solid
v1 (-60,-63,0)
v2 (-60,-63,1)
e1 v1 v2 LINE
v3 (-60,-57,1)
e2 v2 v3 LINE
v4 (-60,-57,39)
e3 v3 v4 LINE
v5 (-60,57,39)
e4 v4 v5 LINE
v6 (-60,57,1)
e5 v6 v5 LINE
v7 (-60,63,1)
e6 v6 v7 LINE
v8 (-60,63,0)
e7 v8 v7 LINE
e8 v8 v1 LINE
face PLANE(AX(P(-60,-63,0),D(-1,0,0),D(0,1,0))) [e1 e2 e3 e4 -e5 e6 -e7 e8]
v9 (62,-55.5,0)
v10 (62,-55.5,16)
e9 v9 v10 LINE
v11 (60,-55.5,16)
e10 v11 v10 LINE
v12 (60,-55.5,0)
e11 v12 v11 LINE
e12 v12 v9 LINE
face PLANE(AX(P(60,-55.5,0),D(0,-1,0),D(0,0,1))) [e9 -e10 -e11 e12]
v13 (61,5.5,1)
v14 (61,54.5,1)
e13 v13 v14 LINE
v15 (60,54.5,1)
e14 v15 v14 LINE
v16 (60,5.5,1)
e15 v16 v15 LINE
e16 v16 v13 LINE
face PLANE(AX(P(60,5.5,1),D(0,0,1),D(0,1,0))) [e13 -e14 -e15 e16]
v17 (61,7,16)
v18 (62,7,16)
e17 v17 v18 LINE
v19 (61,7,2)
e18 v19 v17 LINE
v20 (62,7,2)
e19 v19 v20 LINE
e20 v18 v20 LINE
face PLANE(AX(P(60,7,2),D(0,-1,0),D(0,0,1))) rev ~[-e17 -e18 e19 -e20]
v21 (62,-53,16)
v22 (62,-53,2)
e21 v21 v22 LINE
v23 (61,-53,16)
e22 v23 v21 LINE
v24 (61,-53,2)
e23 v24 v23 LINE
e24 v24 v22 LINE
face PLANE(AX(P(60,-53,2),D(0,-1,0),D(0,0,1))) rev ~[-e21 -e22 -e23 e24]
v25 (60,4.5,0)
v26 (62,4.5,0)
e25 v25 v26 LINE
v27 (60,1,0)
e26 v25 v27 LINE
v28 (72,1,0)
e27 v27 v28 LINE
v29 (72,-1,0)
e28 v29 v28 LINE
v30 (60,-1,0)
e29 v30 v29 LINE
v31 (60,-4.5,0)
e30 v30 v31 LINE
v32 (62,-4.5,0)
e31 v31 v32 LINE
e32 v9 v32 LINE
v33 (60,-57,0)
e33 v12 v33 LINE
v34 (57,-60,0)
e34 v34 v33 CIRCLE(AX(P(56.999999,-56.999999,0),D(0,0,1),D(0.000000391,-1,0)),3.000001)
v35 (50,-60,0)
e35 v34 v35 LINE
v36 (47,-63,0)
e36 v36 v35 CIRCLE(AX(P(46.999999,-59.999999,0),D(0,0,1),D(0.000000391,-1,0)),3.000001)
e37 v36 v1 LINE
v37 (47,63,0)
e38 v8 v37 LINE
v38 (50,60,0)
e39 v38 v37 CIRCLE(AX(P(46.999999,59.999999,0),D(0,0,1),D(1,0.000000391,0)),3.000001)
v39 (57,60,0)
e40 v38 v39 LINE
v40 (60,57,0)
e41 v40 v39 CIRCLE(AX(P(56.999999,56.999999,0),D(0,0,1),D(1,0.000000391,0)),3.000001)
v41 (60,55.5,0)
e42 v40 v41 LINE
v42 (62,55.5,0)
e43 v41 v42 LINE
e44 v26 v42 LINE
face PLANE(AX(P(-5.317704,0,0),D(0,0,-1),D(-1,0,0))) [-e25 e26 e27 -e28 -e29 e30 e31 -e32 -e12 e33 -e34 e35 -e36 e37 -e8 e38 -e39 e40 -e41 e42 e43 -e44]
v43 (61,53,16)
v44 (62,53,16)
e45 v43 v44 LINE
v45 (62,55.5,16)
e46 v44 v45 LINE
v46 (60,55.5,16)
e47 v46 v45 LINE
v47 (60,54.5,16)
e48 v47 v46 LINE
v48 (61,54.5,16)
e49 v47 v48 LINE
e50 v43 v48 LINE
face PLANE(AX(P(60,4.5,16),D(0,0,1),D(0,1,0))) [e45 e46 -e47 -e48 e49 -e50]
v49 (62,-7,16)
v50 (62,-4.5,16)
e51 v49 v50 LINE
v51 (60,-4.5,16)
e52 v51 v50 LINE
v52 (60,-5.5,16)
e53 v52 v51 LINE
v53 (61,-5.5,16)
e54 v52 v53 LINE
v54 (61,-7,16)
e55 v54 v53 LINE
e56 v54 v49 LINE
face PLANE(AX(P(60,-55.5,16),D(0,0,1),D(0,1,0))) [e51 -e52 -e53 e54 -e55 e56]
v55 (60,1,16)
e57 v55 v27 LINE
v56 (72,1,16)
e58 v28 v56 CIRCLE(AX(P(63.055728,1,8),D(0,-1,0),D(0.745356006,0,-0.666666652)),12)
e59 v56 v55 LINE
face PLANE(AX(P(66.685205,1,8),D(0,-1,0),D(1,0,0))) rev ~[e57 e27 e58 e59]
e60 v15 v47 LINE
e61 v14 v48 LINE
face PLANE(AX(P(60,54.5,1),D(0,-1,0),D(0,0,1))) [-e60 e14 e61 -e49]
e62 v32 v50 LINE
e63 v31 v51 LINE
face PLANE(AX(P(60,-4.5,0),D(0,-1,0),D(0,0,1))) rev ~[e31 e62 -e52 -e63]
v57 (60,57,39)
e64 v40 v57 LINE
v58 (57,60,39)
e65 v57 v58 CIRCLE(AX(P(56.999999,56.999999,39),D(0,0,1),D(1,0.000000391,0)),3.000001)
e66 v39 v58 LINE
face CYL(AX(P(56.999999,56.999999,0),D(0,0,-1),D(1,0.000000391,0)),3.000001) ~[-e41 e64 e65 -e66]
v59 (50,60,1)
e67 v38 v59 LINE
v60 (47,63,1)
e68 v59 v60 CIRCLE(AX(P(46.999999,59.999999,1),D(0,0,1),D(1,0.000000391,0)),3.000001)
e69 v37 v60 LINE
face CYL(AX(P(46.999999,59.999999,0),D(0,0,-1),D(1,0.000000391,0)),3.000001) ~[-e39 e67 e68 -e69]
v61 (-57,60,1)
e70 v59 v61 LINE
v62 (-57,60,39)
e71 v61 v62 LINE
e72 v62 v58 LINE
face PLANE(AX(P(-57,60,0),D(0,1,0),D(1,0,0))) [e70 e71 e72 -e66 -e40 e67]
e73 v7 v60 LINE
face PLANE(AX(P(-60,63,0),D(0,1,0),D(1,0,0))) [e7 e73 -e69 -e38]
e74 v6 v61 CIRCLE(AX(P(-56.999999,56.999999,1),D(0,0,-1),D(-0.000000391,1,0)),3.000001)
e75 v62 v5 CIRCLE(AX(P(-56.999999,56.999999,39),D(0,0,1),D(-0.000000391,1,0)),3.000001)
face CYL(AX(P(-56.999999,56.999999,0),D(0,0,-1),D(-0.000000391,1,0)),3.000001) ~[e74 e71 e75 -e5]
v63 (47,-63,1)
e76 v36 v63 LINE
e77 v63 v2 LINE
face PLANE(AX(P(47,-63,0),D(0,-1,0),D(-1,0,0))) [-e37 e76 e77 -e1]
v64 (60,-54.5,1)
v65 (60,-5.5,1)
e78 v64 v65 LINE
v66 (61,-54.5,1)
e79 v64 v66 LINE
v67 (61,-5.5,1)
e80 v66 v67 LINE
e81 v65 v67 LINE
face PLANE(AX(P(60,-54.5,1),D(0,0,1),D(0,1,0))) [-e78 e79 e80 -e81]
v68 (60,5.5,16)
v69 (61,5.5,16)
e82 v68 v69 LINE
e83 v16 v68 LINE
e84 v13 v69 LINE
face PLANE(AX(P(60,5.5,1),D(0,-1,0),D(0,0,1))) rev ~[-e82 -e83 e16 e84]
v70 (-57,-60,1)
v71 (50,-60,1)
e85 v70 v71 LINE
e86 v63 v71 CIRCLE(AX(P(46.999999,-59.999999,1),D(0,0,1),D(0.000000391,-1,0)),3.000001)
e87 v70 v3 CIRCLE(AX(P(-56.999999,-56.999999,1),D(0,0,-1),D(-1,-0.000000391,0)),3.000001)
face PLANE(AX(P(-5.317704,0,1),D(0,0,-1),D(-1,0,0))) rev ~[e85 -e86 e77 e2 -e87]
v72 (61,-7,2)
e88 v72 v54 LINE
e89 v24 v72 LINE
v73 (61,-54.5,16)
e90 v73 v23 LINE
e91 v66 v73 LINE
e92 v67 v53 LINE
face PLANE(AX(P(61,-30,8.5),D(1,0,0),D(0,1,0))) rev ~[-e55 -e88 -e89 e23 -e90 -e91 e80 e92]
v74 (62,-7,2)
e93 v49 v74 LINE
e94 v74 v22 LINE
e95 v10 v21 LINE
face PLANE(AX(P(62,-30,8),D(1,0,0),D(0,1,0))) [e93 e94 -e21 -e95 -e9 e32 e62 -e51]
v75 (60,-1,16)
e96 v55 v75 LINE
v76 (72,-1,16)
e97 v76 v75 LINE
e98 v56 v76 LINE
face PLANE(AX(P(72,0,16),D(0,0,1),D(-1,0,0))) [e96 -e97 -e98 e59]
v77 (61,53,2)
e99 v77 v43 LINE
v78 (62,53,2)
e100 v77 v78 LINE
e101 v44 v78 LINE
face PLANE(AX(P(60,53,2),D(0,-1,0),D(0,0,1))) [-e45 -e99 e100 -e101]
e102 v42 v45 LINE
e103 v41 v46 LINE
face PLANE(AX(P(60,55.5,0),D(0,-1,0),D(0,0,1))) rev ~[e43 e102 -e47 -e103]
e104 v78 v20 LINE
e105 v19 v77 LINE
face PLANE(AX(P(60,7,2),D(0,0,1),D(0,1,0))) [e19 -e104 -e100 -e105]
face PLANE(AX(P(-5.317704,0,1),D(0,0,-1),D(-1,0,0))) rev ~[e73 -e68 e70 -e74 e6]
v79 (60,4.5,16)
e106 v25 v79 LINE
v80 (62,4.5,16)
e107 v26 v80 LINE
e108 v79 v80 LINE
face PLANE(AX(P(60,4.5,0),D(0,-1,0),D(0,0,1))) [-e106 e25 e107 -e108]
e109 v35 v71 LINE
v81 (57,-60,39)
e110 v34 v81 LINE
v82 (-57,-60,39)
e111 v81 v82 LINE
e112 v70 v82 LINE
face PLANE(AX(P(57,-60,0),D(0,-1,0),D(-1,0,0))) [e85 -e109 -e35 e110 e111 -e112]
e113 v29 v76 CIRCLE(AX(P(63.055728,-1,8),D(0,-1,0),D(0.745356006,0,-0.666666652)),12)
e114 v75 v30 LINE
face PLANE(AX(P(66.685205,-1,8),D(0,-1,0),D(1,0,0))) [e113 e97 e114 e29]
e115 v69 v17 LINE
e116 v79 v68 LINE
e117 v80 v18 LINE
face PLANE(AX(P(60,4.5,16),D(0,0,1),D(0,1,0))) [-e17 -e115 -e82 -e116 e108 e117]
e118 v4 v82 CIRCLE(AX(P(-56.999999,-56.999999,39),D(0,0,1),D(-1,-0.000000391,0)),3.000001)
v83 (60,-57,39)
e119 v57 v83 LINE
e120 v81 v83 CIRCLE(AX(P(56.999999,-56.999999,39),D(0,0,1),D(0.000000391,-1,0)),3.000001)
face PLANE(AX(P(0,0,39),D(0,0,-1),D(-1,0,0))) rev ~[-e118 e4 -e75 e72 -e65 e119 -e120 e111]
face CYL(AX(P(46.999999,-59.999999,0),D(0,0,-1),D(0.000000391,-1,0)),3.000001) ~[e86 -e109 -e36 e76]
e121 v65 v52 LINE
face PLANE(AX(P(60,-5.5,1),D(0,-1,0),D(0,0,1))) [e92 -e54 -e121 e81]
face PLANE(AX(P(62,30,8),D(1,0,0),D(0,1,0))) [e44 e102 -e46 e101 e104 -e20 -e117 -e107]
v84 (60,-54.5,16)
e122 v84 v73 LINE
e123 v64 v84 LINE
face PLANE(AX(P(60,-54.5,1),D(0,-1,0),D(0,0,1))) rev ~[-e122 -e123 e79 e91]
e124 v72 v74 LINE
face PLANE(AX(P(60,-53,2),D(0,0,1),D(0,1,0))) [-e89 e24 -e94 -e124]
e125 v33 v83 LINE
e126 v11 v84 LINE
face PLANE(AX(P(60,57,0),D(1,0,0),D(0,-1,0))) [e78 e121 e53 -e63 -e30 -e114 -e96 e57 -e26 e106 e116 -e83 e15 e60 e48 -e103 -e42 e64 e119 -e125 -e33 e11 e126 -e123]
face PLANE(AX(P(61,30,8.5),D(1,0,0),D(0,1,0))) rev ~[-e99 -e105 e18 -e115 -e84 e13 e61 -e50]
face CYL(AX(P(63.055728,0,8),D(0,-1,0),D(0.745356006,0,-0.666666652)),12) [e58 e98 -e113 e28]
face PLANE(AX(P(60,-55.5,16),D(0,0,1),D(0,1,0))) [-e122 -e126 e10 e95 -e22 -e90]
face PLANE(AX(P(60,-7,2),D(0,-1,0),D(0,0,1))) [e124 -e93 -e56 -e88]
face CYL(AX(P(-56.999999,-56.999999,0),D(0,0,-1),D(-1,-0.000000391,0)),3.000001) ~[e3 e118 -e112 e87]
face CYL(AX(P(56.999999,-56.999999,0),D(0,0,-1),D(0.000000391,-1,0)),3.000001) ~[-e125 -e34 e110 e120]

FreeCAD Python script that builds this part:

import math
import FreeCAD as App
import Part
import Sketcher

V = App.Vector
Q = App.Units.Quantity


def add_polygon(sketch, points):
    """Adds a closed chain of lines whose ends are joined by coincident constraints."""
    first, n = sketch.GeometryCount, len(points)
    for a, b in zip(points, points[1:] + points[:1]):
        sketch.addGeometry(Part.LineSegment(App.Vector(*a, 0), App.Vector(*b, 0)), False)
    for i in range(n):
        sketch.addConstraint(Sketcher.Constraint("Coincident", first + i, 2, first + (i + 1) % n, 1))

doc = App.newDocument("Part")
body = doc.addObject("PartDesign::Body", "Body")

# Sketch on XY plane
sketch1 = body.newObject("Sketcher::SketchObject", "Sketch")
sketch1.AttachmentSupport = (doc.getObject("XY_Plane"), [""])
sketch1.MapMode = "FlatFace"
sketch1.addGeometry(Part.LineSegment(V(57, 60, 0), V(-57, 60, 0)), False)
sketch1.addGeometry(Part.ArcOfCircle(Part.Circle(V(-56.999999, 56.999999, 0), V(0, 0, 1), 3.000001), math.radians(90.000022), math.radians(179.999978)), False)
sketch1.addGeometry(Part.LineSegment(V(-60, 57, 0), V(-60, -57, 0)), False)
sketch1.addGeometry(Part.ArcOfCircle(Part.Circle(V(-56.999999, -56.999999, 0), V(0, 0, 1), 3.000001), math.radians(-179.999978), math.radians(-90.000022)), False)
sketch1.addGeometry(Part.LineSegment(V(-57, -60, 0), V(57, -60, 0)), False)
sketch1.addGeometry(Part.ArcOfCircle(Part.Circle(V(56.999999, -56.999999, 0), V(0, 0, 1), 3.000001), math.radians(-89.999978), math.radians(-0.000022)), False)
sketch1.addGeometry(Part.LineSegment(V(60, -57, 0), V(60, 57, 0)), False)
sketch1.addGeometry(Part.ArcOfCircle(Part.Circle(V(56.999999, 56.999999, 0), V(0, 0, 1), 3.000001), math.radians(0.000022), math.radians(89.999978)), False)
sketch1.addConstraint(Sketcher.Constraint("Tangent", 0, 2, 1, 1))
sketch1.addConstraint(Sketcher.Constraint("Tangent", 1, 2, 2, 1))
sketch1.addConstraint(Sketcher.Constraint("Tangent", 2, 2, 3, 1))
sketch1.addConstraint(Sketcher.Constraint("Tangent", 3, 2, 4, 1))
sketch1.addConstraint(Sketcher.Constraint("Tangent", 4, 2, 5, 1))
sketch1.addConstraint(Sketcher.Constraint("Tangent", 5, 2, 6, 1))
sketch1.addConstraint(Sketcher.Constraint("Tangent", 6, 2, 7, 1))
sketch1.addConstraint(Sketcher.Constraint("Tangent", 7, 2, 0, 1))
sketch1.addConstraint(Sketcher.Constraint("Horizontal", 0))
sketch1.addConstraint(Sketcher.Constraint("Vertical", 2))
sketch1.addConstraint(Sketcher.Constraint("Horizontal", 4))
sketch1.addConstraint(Sketcher.Constraint("Vertical", 6))
sketch1.addConstraint(Sketcher.Constraint("Equal", 1, 3))
sketch1.addConstraint(Sketcher.Constraint("Equal", 3, 5))
sketch1.addConstraint(Sketcher.Constraint("Equal", 5, 7))
sketch1.addConstraint(Sketcher.Constraint("Symmetric", 1, 3, 5, 3, -1, 1))
sketch1.addConstraint(Sketcher.Constraint("Equal", 4, 2))
sketch1.addConstraint(Sketcher.Constraint("Radius", 1, Q("3.000001 mm")))
sketch1.addConstraint(Sketcher.Constraint("DistanceX", 0, 2, 0, 1, Q("114 mm")))
pad1 = body.newObject("PartDesign::Pad", "Pad")
pad1.Profile = sketch1
pad1.Length = 39

# Sketch on XY plane
sketch2 = body.newObject("Sketcher::SketchObject", "Sketch001")
sketch2.AttachmentSupport = (doc.getObject("XY_Plane"), [""])
sketch2.MapMode = "FlatFace"
sketch2.addGeometry(Part.LineSegment(V(47, 63, 0), V(-60, 63, 0)), False)
sketch2.addGeometry(Part.LineSegment(V(-60, 63, 0), V(-60, -63, 0)), False)
sketch2.addGeometry(Part.LineSegment(V(-60, -63, 0), V(47, -63, 0)), False)
sketch2.addGeometry(Part.ArcOfCircle(Part.Circle(V(46.999999, -59.999999, 0), V(0, 0, 1), 3.000001), math.radians(-89.999978), math.radians(-0.000022)), False)
sketch2.addGeometry(Part.LineSegment(V(50, -60, 0), V(50, 60, 0)), False)
sketch2.addGeometry(Part.ArcOfCircle(Part.Circle(V(46.999999, 59.999999, 0), V(0, 0, 1), 3.000001), math.radians(0.000022), math.radians(89.999978)), False)
sketch2.addConstraint(Sketcher.Constraint("Coincident", 0, 2, 1, 1))
sketch2.addConstraint(Sketcher.Constraint("Coincident", 1, 2, 2, 1))
sketch2.addConstraint(Sketcher.Constraint("Tangent", 2, 2, 3, 1))
sketch2.addConstraint(Sketcher.Constraint("Tangent", 3, 2, 4, 1))
sketch2.addConstraint(Sketcher.Constraint("Tangent", 4, 2, 5, 1))
sketch2.addConstraint(Sketcher.Constraint("Tangent", 5, 2, 0, 1))
sketch2.addConstraint(Sketcher.Constraint("Horizontal", 0))
sketch2.addConstraint(Sketcher.Constraint("Vertical", 1))
sketch2.addConstraint(Sketcher.Constraint("Horizontal", 2))
sketch2.addConstraint(Sketcher.Constraint("Vertical", 4))
sketch2.addConstraint(Sketcher.Constraint("Equal", 3, 5))
sketch2.addConstraint(Sketcher.Constraint("Radius", 3, Q("3.000001 mm")))
sketch2.addConstraint(Sketcher.Constraint("DistanceX", 0, 2, 0, 1, Q("107 mm")))
sketch2.addConstraint(Sketcher.Constraint("DistanceY", 1, 2, 1, 1, Q("126 mm")))
sketch2.addConstraint(Sketcher.Constraint("DistanceX", -1, 1, 3, 3, Q("46.999999 mm")))
sketch2.addConstraint(Sketcher.Constraint("DistanceY", 3, 3, -1, 1, Q("59.999999 mm")))
pad2 = body.newObject("PartDesign::Pad", "Pad001")
pad2.Profile = sketch2
pad2.Length = 1

# Sketch on YZ plane
sketch3 = body.newObject("Sketcher::SketchObject", "Sketch002")
sketch3.AttachmentSupport = (doc.getObject("YZ_Plane"), [""])
sketch3.MapMode = "FlatFace"
sketch3.AttachmentOffset = App.Placement(V(0, 0, 60), App.Rotation())
add_polygon(sketch3, [(-55.5, 16), (-55.5, 0), (-4.5, 0), (-4.5, 16)])  # lines 0-3
add_polygon(sketch3, [(4.5, 16), (4.5, 0), (55.5, 0), (55.5, 16)])  # lines 4-7
sketch3.addConstraint(Sketcher.Constraint("Vertical", 0))
sketch3.addConstraint(Sketcher.Constraint("Horizontal", 1))
sketch3.addConstraint(Sketcher.Constraint("Vertical", 2))
sketch3.addConstraint(Sketcher.Constraint("Horizontal", 3))
sketch3.addConstraint(Sketcher.Constraint("Vertical", 4))
sketch3.addConstraint(Sketcher.Constraint("Horizontal", 5))
sketch3.addConstraint(Sketcher.Constraint("Vertical", 6))
sketch3.addConstraint(Sketcher.Constraint("Horizontal", 7))
sketch3.addConstraint(Sketcher.Constraint("Symmetric", 1, 2, 4, 2, -1, 1))
sketch3.addConstraint(Sketcher.Constraint("Symmetric", 0, 2, 5, 2, -2))
sketch3.addConstraint(Sketcher.Constraint("Horizontal", 3, 2, 6, 2))
sketch3.addConstraint(Sketcher.Constraint("DistanceX", 1, 1, 1, 2, Q("51 mm")))
sketch3.addConstraint(Sketcher.Constraint("DistanceY", 0, 2, 0, 1, Q("16 mm")))
sketch3.addConstraint(Sketcher.Constraint("DistanceX", 1, 2, 4, 2, Q("9 mm")))
pad3 = body.newObject("PartDesign::Pad", "Pad002")
pad3.Profile = sketch3
pad3.Length = 2

# Sketch on YZ plane
sketch4 = body.newObject("Sketcher::SketchObject", "Sketch003")
sketch4.AttachmentSupport = (doc.getObject("YZ_Plane"), [""])
sketch4.MapMode = "FlatFace"
sketch4.AttachmentOffset = App.Placement(V(0, 0, 60), App.Rotation())
add_polygon(sketch4, [(-53, 16), (-53, 2), (-7, 2), (-7, 16)])  # lines 0-3
add_polygon(sketch4, [(7, 16), (7, 2), (53, 2), (53, 16)])  # lines 4-7
sketch4.addConstraint(Sketcher.Constraint("Vertical", 0))
sketch4.addConstraint(Sketcher.Constraint("Horizontal", 1))
sketch4.addConstraint(Sketcher.Constraint("Vertical", 2))
sketch4.addConstraint(Sketcher.Constraint("Horizontal", 3))
sketch4.addConstraint(Sketcher.Constraint("Vertical", 4))
sketch4.addConstraint(Sketcher.Constraint("Horizontal", 5))
sketch4.addConstraint(Sketcher.Constraint("Vertical", 6))
sketch4.addConstraint(Sketcher.Constraint("Horizontal", 7))
sketch4.addConstraint(Sketcher.Constraint("Symmetric", 1, 2, 4, 2, -2))
sketch4.addConstraint(Sketcher.Constraint("Symmetric", 3, 2, 6, 2, -2))
sketch4.addConstraint(Sketcher.Constraint("DistanceX", 1, 1, 1, 2, Q("46 mm")))
sketch4.addConstraint(Sketcher.Constraint("DistanceY", 0, 2, 0, 1, Q("14 mm")))
sketch4.addConstraint(Sketcher.Constraint("DistanceX", 0, 2, -1, 1, Q("53 mm")))
sketch4.addConstraint(Sketcher.Constraint("DistanceY", -1, 1, 0, 2, Q("2 mm")))
pocket1 = body.newObject("PartDesign::Pocket", "Pocket")
pocket1.Profile = sketch4
pocket1.Length = 3
pocket1.Reversed = True

# Sketch on YZ plane
sketch5 = body.newObject("Sketcher::SketchObject", "Sketch004")
sketch5.AttachmentSupport = (doc.getObject("YZ_Plane"), [""])
sketch5.MapMode = "FlatFace"
sketch5.AttachmentOffset = App.Placement(V(0, 0, 60), App.Rotation())
add_polygon(sketch5, [(-54.5, 16), (-54.5, 1), (-5.5, 1), (-5.5, 16)])  # lines 0-3
add_polygon(sketch5, [(5.5, 16), (5.5, 1), (54.5, 1), (54.5, 16)])  # lines 4-7
sketch5.addConstraint(Sketcher.Constraint("Vertical", 0))
sketch5.addConstraint(Sketcher.Constraint("Horizontal", 1))
sketch5.addConstraint(Sketcher.Constraint("Vertical", 2))
sketch5.addConstraint(Sketcher.Constraint("Horizontal", 3))
sketch5.addConstraint(Sketcher.Constraint("Vertical", 4))
sketch5.addConstraint(Sketcher.Constraint("Horizontal", 5))
sketch5.addConstraint(Sketcher.Constraint("Vertical", 6))
sketch5.addConstraint(Sketcher.Constraint("Horizontal", 7))
sketch5.addConstraint(Sketcher.Constraint("Symmetric", 1, 2, 4, 2, -2))
sketch5.addConstraint(Sketcher.Constraint("Symmetric", 3, 2, 6, 2, -2))
sketch5.addConstraint(Sketcher.Constraint("DistanceX", 1, 1, 1, 2, Q("49 mm")))
sketch5.addConstraint(Sketcher.Constraint("DistanceY", 0, 2, 0, 1, Q("15 mm")))
sketch5.addConstraint(Sketcher.Constraint("DistanceY", -1, 1, 0, 2, Q("1 mm")))
sketch5.addConstraint(Sketcher.Constraint("DistanceX", 1, 2, 4, 2, Q("11 mm")))
pocket2 = body.newObject("PartDesign::Pocket", "Pocket001")
pocket2.Profile = sketch5
pocket2.Length = 1
pocket2.Reversed = True

# Sketch on XZ plane
sketch6 = body.newObject("Sketcher::SketchObject", "Sketch005")
sketch6.AttachmentSupport = (doc.getObject("XZ_Plane"), [""])
sketch6.MapMode = "FlatFace"
sketch6.addGeometry(Part.ArcOfCircle(Part.Circle(V(63.055728, 8, 0), V(0, 0, 1), 12), math.radians(-41.810314), math.radians(41.810314)), False)
sketch6.addGeometry(Part.LineSegment(V(72, 16, 0), V(60, 16, 0)), False)
sketch6.addGeometry(Part.LineSegment(V(60, 16, 0), V(60, 0, 0)), False)
sketch6.addGeometry(Part.LineSegment(V(60, 0, 0), V(72, 0, 0)), False)
sketch6.addConstraint(Sketcher.Constraint("Coincident", 0, 2, 1, 1))
sketch6.addConstraint(Sketcher.Constraint("Coincident", 1, 2, 2, 1))
sketch6.addConstraint(Sketcher.Constraint("Coincident", 2, 2, 3, 1))
sketch6.addConstraint(Sketcher.Constraint("Coincident", 3, 2, 0, 1))
sketch6.addConstraint(Sketcher.Constraint("Horizontal", 1))
sketch6.addConstraint(Sketcher.Constraint("Vertical", 2))
sketch6.addConstraint(Sketcher.Constraint("Horizontal", 3))
sketch6.addConstraint(Sketcher.Constraint("PointOnObject", 2, 2, -1))
sketch6.addConstraint(Sketcher.Constraint("Vertical", 0, 2, 3, 2))
sketch6.addConstraint(Sketcher.Constraint("Radius", 0, Q("12 mm")))
sketch6.addConstraint(Sketcher.Constraint("DistanceX", 1, 2, 1, 1, Q("12 mm")))
sketch6.addConstraint(Sketcher.Constraint("DistanceY", 2, 2, 2, 1, Q("16 mm")))
sketch6.addConstraint(Sketcher.Constraint("DistanceX", -1, 1, 0, 2, Q("72 mm")))
pad4 = body.newObject("PartDesign::Pad", "Pad003")
pad4.Profile = sketch6
pad4.Length = 2
pad4.Midplane = True

doc.recompute()
